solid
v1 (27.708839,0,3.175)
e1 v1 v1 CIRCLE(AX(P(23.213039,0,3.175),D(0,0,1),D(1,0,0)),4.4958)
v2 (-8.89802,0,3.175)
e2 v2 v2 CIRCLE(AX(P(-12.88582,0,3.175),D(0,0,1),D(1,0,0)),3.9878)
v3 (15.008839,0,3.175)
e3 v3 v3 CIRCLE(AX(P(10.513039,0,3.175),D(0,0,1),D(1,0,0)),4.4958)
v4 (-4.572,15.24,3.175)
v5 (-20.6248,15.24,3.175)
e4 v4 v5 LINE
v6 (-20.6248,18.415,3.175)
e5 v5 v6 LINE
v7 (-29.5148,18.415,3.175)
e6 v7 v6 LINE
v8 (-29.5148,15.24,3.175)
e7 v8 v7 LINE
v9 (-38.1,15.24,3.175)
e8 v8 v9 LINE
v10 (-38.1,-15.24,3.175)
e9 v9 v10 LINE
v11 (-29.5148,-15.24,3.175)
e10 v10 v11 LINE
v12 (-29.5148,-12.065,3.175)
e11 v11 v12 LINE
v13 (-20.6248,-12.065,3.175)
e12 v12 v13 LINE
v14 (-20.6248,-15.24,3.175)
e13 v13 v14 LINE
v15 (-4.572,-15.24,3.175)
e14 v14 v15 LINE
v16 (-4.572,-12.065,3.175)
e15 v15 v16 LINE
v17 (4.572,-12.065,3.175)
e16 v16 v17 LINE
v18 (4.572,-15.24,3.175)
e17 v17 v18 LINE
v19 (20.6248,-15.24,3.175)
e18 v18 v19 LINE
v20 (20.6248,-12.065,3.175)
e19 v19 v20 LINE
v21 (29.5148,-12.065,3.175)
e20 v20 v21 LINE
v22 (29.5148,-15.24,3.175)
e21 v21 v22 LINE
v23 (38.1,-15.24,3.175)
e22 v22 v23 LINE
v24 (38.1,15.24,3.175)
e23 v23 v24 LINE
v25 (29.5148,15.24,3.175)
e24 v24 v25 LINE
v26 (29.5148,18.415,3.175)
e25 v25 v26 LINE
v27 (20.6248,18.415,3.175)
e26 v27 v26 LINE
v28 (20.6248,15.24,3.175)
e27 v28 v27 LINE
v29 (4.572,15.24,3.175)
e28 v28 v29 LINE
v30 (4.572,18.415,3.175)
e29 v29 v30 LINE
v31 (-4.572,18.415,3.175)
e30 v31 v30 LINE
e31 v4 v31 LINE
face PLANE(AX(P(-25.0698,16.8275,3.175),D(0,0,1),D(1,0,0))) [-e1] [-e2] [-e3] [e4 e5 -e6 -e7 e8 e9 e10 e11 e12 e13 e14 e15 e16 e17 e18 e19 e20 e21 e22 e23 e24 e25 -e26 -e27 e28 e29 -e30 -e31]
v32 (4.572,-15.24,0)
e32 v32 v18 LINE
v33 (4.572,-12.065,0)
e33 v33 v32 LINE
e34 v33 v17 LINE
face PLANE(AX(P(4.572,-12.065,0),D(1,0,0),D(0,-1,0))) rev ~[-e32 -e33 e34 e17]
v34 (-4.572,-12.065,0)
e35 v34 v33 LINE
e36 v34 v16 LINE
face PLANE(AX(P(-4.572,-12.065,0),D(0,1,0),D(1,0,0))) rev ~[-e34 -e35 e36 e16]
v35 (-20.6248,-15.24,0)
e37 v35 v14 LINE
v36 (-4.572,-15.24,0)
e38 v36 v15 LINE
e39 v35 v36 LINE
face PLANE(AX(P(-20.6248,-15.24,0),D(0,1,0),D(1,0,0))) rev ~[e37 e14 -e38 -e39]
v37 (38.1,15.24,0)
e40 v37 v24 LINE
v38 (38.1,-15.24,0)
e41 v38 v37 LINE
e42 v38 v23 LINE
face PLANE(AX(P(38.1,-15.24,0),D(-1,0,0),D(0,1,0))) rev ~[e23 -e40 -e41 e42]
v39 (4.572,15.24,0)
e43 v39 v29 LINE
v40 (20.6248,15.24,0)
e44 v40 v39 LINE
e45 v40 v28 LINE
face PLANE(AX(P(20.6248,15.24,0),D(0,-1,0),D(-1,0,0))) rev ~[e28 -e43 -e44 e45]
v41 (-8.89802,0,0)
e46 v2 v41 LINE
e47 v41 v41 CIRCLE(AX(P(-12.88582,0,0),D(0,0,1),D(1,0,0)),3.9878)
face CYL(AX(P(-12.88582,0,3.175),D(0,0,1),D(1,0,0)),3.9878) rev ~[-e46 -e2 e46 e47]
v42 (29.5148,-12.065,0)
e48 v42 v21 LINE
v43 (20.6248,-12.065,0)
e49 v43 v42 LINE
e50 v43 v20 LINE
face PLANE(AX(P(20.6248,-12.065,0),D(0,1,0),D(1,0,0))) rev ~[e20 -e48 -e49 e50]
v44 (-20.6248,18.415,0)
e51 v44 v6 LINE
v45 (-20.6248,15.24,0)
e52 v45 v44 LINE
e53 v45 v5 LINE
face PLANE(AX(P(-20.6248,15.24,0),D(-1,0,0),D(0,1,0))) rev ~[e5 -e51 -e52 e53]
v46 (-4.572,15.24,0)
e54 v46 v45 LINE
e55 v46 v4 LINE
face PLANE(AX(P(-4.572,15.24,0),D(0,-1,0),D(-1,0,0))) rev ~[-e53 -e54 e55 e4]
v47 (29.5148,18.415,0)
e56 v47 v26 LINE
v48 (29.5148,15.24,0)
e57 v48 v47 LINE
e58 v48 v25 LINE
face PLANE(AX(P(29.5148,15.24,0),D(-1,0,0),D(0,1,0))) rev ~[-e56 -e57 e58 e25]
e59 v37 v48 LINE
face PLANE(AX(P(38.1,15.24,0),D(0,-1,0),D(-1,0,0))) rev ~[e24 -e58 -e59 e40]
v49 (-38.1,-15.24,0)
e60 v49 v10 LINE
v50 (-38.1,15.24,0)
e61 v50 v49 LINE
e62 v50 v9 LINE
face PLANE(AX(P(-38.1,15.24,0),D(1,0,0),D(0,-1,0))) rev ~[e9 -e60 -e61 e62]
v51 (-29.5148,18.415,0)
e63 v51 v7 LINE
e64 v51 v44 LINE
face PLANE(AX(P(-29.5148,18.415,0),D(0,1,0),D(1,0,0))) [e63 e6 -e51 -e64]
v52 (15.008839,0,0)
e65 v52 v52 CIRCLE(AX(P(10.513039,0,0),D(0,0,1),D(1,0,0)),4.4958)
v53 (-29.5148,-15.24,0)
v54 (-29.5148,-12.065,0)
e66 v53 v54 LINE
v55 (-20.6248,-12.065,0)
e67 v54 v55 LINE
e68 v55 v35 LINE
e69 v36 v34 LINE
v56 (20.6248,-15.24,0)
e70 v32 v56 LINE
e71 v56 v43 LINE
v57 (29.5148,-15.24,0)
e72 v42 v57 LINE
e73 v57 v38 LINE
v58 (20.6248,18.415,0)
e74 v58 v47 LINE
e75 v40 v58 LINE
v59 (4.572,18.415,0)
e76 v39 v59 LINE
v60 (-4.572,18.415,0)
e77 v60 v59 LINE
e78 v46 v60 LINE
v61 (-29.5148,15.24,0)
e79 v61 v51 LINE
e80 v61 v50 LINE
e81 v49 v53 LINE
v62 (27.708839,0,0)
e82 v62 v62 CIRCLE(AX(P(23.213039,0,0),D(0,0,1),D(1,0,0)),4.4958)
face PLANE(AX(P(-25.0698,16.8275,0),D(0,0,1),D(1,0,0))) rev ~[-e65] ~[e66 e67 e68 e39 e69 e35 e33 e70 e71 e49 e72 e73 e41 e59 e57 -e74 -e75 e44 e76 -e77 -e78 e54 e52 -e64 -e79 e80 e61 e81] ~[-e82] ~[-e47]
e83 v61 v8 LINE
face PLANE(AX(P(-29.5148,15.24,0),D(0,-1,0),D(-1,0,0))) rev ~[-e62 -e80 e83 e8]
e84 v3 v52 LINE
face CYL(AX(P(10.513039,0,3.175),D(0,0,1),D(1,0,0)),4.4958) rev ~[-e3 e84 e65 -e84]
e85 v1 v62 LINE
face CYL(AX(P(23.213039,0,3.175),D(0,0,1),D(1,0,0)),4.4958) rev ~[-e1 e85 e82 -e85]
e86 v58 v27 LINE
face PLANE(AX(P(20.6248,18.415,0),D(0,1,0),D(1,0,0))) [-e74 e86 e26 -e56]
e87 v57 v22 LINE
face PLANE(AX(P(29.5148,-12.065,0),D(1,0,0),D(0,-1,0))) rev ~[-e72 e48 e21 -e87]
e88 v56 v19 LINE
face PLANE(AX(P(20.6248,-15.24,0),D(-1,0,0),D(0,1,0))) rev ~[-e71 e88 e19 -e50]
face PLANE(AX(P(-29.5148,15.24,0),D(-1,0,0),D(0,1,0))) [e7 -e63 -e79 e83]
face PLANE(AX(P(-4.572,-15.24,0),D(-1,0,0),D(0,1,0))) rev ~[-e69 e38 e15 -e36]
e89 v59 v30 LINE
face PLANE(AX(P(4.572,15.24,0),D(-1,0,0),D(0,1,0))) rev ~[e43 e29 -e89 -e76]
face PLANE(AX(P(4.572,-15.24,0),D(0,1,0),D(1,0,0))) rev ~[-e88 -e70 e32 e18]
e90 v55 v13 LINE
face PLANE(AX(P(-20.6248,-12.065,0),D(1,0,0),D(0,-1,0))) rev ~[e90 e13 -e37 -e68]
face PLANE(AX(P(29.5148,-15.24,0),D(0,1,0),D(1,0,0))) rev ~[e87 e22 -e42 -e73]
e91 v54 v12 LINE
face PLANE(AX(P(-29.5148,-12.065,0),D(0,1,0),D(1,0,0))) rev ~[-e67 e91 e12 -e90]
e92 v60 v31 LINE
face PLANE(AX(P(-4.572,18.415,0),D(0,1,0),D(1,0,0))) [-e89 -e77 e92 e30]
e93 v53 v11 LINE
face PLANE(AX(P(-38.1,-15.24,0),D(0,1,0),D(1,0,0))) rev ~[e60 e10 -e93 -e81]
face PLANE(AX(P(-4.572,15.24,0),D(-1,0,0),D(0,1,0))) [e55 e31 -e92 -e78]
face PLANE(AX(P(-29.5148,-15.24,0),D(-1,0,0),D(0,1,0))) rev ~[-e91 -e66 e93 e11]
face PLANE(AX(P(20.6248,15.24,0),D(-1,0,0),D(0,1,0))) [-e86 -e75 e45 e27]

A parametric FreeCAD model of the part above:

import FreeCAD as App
import Part
import Sketcher
from FreeCAD import Vector
Q = App.Units.Quantity


def add_polygon(sketch, points):
    """Adds a closed chain of lines whose ends are joined by coincident constraints."""
    first, n = sketch.GeometryCount, len(points)
    for a, b in zip(points, points[1:] + points[:1]):
        sketch.addGeometry(Part.LineSegment(App.Vector(*a, 0), App.Vector(*b, 0)), False)
    for i in range(n):
        sketch.addConstraint(Sketcher.Constraint("Coincident", first + i, 2, first + (i + 1) % n, 1))

doc = App.newDocument("Part")
body = doc.addObject("PartDesign::Body", "Body")

# Sketch on XY plane
sketch1 = doc.addObject("Sketcher::SketchObject", "Sketch")
body.addObject(sketch1)
sketch1.AttachmentSupport = (doc.XY_Plane, [""])
sketch1.MapMode = "FlatFace"
add_polygon(sketch1, [(-29.5, 18.4), (-29.5, 15.2), (-38.1, 15.2), (-38.1, -15.2), (-29.5, -15.2), (-29.5, -12.1), (-20.6, -12.1), (-20.6, -15.2), (-4.6, -15.2), (-4.6, -12.1), (4.6, -12.1), (4.6, -15.2), (20.6, -15.2), (20.6, -12.1), (29.5, -12.1), (29.5, -15.2), (38.1, -15.2), (38.1, 15.2), (29.5, 15.2), (29.5, 18.4), (20.6, 18.4), (20.6, 15.2), (4.6, 15.2), (4.6, 18.4), (-4.6, 18.4), (-4.6, 15.2), (-20.6, 15.2), (-20.6, 18.4)])  # lines 0-27
sketch1.addConstraint([
    Sketcher.Constraint("Vertical", 0),
    Sketcher.Constraint("Horizontal", 1),
    Sketcher.Constraint("Vertical", 2),
    Sketcher.Constraint("Horizontal", 3),
    Sketcher.Constraint("Vertical", 4),
    Sketcher.Constraint("Horizontal", 5),
    Sketcher.Constraint("Vertical", 6),
    Sketcher.Constraint("Horizontal", 7),
    Sketcher.Constraint("Vertical", 8),
    Sketcher.Constraint("Horizontal", 9),
    Sketcher.Constraint("Vertical", 10),
    Sketcher.Constraint("Horizontal", 11),
    Sketcher.Constraint("Vertical", 12),
    Sketcher.Constraint("Horizontal", 13),
    Sketcher.Constraint("Vertical", 14),
    Sketcher.Constraint("Horizontal", 15),
    Sketcher.Constraint("Vertical", 16),
    Sketcher.Constraint("Horizontal", 17),
    Sketcher.Constraint("Vertical", 18),
    Sketcher.Constraint("Horizontal", 19),
    Sketcher.Constraint("Vertical", 20),
    Sketcher.Constraint("Horizontal", 21),
    Sketcher.Constraint("Vertical", 22),
    Sketcher.Constraint("Horizontal", 23),
    Sketcher.Constraint("Vertical", 24),
    Sketcher.Constraint("Horizontal", 25),
    Sketcher.Constraint("Vertical", 26),
    Sketcher.Constraint("Horizontal", 27),
    Sketcher.Constraint("Symmetric", 0, 2, 14, 2, -1, 1),
    Sketcher.Constraint("Symmetric", 2, 2, 16, 2, -1, 1),
    Sketcher.Constraint("Symmetric", 6, 2, 20, 2, -1, 1),
    Sketcher.Constraint("Symmetric", 10, 2, 24, 2, -1, 1),
    Sketcher.Constraint("Symmetric", 7, 2, 10, 2, -2),
    Sketcher.Constraint("Symmetric", 5, 2, 12, 2, -2),
    Sketcher.Constraint("Symmetric", 3, 2, 14, 2, -2),
    Sketcher.Constraint("Symmetric", 19, 2, 26, 2, -2),
    Sketcher.Constraint("Horizontal", 3, 2, 6, 2),
    Sketcher.Constraint("Horizontal", 5, 2, 8, 2),
    Sketcher.Constraint("Horizontal", 19, 2, 22, 2),
    Sketcher.Constraint("Vertical", 14, 2, 17, 2),
    Sketcher.Constraint("Vertical", 10, 2, 21, 2),
    Sketcher.Constraint("Equal", 0, 4),
    Sketcher.Constraint("DistanceY", 2, 2, 2, 1, Q("1.2 in")),
    Sketcher.Constraint("DistanceX", 5, 1, 5, 2, Q("0.35 in")),
    Sketcher.Constraint("DistanceX", 9, 1, 9, 2, Q("0.36 in")),
    Sketcher.Constraint("DistanceX", 1, 2, -1, 1, Q("1.5 in")),
    Sketcher.Constraint("DistanceX", 1, 2, 1, 1, Q("0.338 in")),
    Sketcher.Constraint("DistanceY", 0, 2, 0, 1, Q("0.125 in")),
])
pad1 = doc.addObject("PartDesign::Pad", "Pad")
body.addObject(pad1)
pad1.Profile = sketch1
pad1.Length = Q("0.125 in")

# Sketch on XY plane
sketch2 = doc.addObject("Sketcher::SketchObject", "Sketch001")
body.addObject(sketch2)
sketch2.AttachmentSupport = (doc.XY_Plane, [""])
sketch2.MapMode = "FlatFace"
sketch2.AttachmentOffset = App.Placement(Vector(0, 0, 0.125 * 25.4), App.Rotation())
sketch2.addGeometry([
    Part.Circle(Vector(-12.9, 0, 0), Vector(0, 0, 1), 4),
    Part.Circle(Vector(10.5, 0, 0), Vector(0, 0, 1), 4.5),
    Part.Circle(Vector(23.2, 0, 0), Vector(0, 0, 1), 4.5),
], False)
sketch2.addConstraint([
    Sketcher.Constraint("Equal", 1, 2),
    Sketcher.Constraint("PointOnObject", 0, 3, -1),
    Sketcher.Constraint("PointOnObject", 1, 3, -1),
    Sketcher.Constraint("PointOnObject", 2, 3, -1),
    Sketcher.Constraint("Diameter", 0, Q("0.314 in")),
    Sketcher.Constraint("Diameter", 1, Q("0.354 in")),
    Sketcher.Constraint("DistanceX", 1, 3, 2, 3, Q("0.5 in")),
    Sketcher.Constraint("DistanceX", 0, 3, -1, 1, Q("12.88582 mm")),
    Sketcher.Constraint("DistanceX", -1, 1, 1, 3, Q("10.513039 mm")),
])
pocket1 = doc.addObject("PartDesign::Pocket", "Pocket")
body.addObject(pocket1)
pocket1.Profile = sketch2
pocket1.Length = Q("1 in")

doc.recompute()
